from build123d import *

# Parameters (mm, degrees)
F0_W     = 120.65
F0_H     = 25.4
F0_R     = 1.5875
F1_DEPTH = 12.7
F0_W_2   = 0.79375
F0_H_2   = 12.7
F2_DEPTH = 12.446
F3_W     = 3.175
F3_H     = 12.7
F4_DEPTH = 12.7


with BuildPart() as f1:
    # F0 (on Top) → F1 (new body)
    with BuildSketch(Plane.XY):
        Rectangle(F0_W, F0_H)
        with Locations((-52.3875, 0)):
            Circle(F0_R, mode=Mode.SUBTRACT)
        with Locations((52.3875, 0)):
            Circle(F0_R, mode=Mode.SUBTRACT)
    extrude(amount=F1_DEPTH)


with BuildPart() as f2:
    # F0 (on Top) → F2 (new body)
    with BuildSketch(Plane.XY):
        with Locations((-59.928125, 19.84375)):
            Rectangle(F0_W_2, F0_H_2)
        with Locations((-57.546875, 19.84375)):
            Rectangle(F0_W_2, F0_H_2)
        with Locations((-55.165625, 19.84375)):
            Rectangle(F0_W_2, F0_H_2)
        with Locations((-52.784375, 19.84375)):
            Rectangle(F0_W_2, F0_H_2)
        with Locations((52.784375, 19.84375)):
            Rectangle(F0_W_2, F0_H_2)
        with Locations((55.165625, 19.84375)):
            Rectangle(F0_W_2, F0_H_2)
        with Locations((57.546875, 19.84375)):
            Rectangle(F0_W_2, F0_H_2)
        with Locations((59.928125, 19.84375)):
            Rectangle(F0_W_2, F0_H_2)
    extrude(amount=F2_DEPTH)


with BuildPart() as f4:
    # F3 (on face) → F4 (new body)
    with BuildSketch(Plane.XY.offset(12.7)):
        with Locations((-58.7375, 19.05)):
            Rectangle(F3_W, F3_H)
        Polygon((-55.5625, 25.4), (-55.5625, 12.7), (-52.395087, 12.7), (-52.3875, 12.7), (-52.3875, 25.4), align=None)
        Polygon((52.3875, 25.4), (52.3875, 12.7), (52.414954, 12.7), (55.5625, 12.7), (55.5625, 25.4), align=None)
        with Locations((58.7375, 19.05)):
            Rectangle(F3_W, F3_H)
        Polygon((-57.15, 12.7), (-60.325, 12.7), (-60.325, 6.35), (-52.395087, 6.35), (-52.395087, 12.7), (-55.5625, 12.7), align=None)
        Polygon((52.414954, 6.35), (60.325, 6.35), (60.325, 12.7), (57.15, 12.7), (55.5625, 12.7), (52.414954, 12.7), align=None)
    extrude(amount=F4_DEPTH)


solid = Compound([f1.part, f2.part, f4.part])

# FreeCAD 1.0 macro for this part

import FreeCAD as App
import Part
import Sketcher
from FreeCAD import Vector
Q = App.Units.Quantity

doc = App.newDocument("Part")
body = doc.addObject("PartDesign::Body", "Body")

sketch1 = body.newObject("Sketcher::SketchObject", "Sketch")
sketch1.AttachmentSupport = (doc.getObject("XY_Plane"), [""])
sketch1.MapMode = "FlatFace"
sketch1.addGeometry([
    Part.LineSegment(Vector(-60.3, 12.7, 0), Vector(-60.3, -12.7, 0)),
    Part.LineSegment(Vector(-60.3, -12.7, 0), Vector(60.3, -12.7, 0)),
    Part.LineSegment(Vector(60.3, -12.7, 0), Vector(60.3, 12.7, 0)),
    Part.LineSegment(Vector(60.3, 12.7, 0), Vector(-60.3, 12.7, 0)),
    Part.Circle(Vector(-52.4, 0, 0), Vector(0, 0, 1), 1.6),
    Part.Circle(Vector(52.4, 0, 0), Vector(0, 0, 1), 1.6),
], False)
sketch1.addConstraint([
    Sketcher.Constraint("Coincident", 0, 2, 1, 1),
    Sketcher.Constraint("Coincident", 1, 2, 2, 1),
    Sketcher.Constraint("Coincident", 2, 2, 3, 1),
    Sketcher.Constraint("Coincident", 3, 2, 0, 1),
    Sketcher.Constraint("Vertical", 0),
    Sketcher.Constraint("Horizontal", 1),
    Sketcher.Constraint("Vertical", 2),
    Sketcher.Constraint("Horizontal", 3),
    Sketcher.Constraint("Equal", 4, 5),
    Sketcher.Constraint("Symmetric", 4, 3, 5, 3, -1, 1),
    Sketcher.Constraint("Symmetric", 0, 2, 2, 2, -1, 1),
    Sketcher.Constraint("PointOnObject", 4, 3, -1),
    Sketcher.Constraint("DistanceY", 0, 2, 0, 1, Q("1 in")),
    Sketcher.Constraint("Diameter", 4, Q("0.125 in")),
    Sketcher.Constraint("DistanceX", 1, 1, 1, 2, Q("4.75 in")),
    Sketcher.Constraint("DistanceX", 4, 3, -1, 1, Q("2.0625 in")),
])
pad1 = body.newObject("PartDesign::Pad", "Pad")
pad1.Profile = sketch1
pad1.Length = Q("0.5 in")
body2 = doc.addObject("PartDesign::Body", "Body001")
body2.AllowCompound = True

sketch2 = body2.newObject("Sketcher::SketchObject", "Sketch001")
sketch2.AttachmentSupport = (doc.getObject("XY_Plane001"), [""])
sketch2.MapMode = "FlatFace"
sketch2.addGeometry([
    Part.LineSegment(Vector(-60.3, 26.2, 0), Vector(-60.3, 13.5, 0)),
    Part.LineSegment(Vector(-60.3, 13.5, 0), Vector(-59.5, 13.5, 0)),
    Part.LineSegment(Vector(-59.5, 13.5, 0), Vector(-59.5, 26.2, 0)),
    Part.LineSegment(Vector(-59.5, 26.2, 0), Vector(-60.3, 26.2, 0)),
    Part.LineSegment(Vector(-57.9, 26.2, 0), Vector(-57.9, 13.5, 0)),
    Part.LineSegment(Vector(-57.9, 13.5, 0), Vector(-57.1, 13.5, 0)),
    Part.LineSegment(Vector(-57.1, 13.5, 0), Vector(-57.1, 26.2, 0)),
    Part.LineSegment(Vector(-57.1, 26.2, 0), Vector(-57.9, 26.2, 0)),
    Part.LineSegment(Vector(-55.6, 26.2, 0), Vector(-55.6, 13.5, 0)),
    Part.LineSegment(Vector(-55.6, 13.5, 0), Vector(-54.8, 13.5, 0)),
    Part.LineSegment(Vector(-54.8, 13.5, 0), Vector(-54.8, 26.2, 0)),
    Part.LineSegment(Vector(-54.8, 26.2, 0), Vector(-55.6, 26.2, 0)),
    Part.LineSegment(Vector(-53.2, 26.2, 0), Vector(-53.2, 13.5, 0)),
    Part.LineSegment(Vector(-53.2, 13.5, 0), Vector(-52.4, 13.5, 0)),
    Part.LineSegment(Vector(-52.4, 13.5, 0), Vector(-52.4, 26.2, 0)),
    Part.LineSegment(Vector(-52.4, 26.2, 0), Vector(-53.2, 26.2, 0)),
    Part.LineSegment(Vector(52.4, 26.2, 0), Vector(52.4, 13.5, 0)),
    Part.LineSegment(Vector(52.4, 13.5, 0), Vector(53.2, 13.5, 0)),
    Part.LineSegment(Vector(53.2, 13.5, 0), Vector(53.2, 26.2, 0)),
    Part.LineSegment(Vector(53.2, 26.2, 0), Vector(52.4, 26.2, 0)),
    Part.LineSegment(Vector(54.8, 26.2, 0), Vector(54.8, 13.5, 0)),
    Part.LineSegment(Vector(54.8, 13.5, 0), Vector(55.6, 13.5, 0)),
    Part.LineSegment(Vector(55.6, 13.5, 0), Vector(55.6, 26.2, 0)),
    Part.LineSegment(Vector(55.6, 26.2, 0), Vector(54.8, 26.2, 0)),
    Part.LineSegment(Vector(57.1, 26.2, 0), Vector(57.1, 13.5, 0)),
    Part.LineSegment(Vector(57.1, 13.5, 0), Vector(57.9, 13.5, 0)),
    Part.LineSegment(Vector(57.9, 13.5, 0), Vector(57.9, 26.2, 0)),
    Part.LineSegment(Vector(57.9, 26.2, 0), Vector(57.1, 26.2, 0)),
    Part.LineSegment(Vector(59.5, 26.2, 0), Vector(59.5, 13.5, 0)),
    Part.LineSegment(Vector(59.5, 13.5, 0), Vector(60.3, 13.5, 0)),
    Part.LineSegment(Vector(60.3, 13.5, 0), Vector(60.3, 26.2, 0)),
    Part.LineSegment(Vector(60.3, 26.2, 0), Vector(59.5, 26.2, 0)),
], False)
sketch2.addConstraint([
    Sketcher.Constraint("Coincident", 0, 2, 1, 1),
    Sketcher.Constraint("Coincident", 1, 2, 2, 1),
    Sketcher.Constraint("Coincident", 2, 2, 3, 1),
    Sketcher.Constraint("Coincident", 3, 2, 0, 1),
    Sketcher.Constraint("Coincident", 4, 2, 5, 1),
    Sketcher.Constraint("Coincident", 5, 2, 6, 1),
    Sketcher.Constraint("Coincident", 6, 2, 7, 1),
    Sketcher.Constraint("Coincident", 7, 2, 4, 1),
    Sketcher.Constraint("Coincident", 8, 2, 9, 1),
    Sketcher.Constraint("Coincident", 9, 2, 10, 1),
    Sketcher.Constraint("Coincident", 10, 2, 11, 1),
    Sketcher.Constraint("Coincident", 11, 2, 8, 1),
    Sketcher.Constraint("Coincident", 12, 2, 13, 1),
    Sketcher.Constraint("Coincident", 13, 2, 14, 1),
    Sketcher.Constraint("Coincident", 14, 2, 15, 1),
    Sketcher.Constraint("Coincident", 15, 2, 12, 1),
    Sketcher.Constraint("Coincident", 16, 2, 17, 1),
    Sketcher.Constraint("Coincident", 17, 2, 18, 1),
    Sketcher.Constraint("Coincident", 18, 2, 19, 1),
    Sketcher.Constraint("Coincident", 19, 2, 16, 1),
    Sketcher.Constraint("Coincident", 20, 2, 21, 1),
    Sketcher.Constraint("Coincident", 21, 2, 22, 1),
    Sketcher.Constraint("Coincident", 22, 2, 23, 1),
    Sketcher.Constraint("Coincident", 23, 2, 20, 1),
    Sketcher.Constraint("Coincident", 24, 2, 25, 1),
    Sketcher.Constraint("Coincident", 25, 2, 26, 1),
    Sketcher.Constraint("Coincident", 26, 2, 27, 1),
    Sketcher.Constraint("Coincident", 27, 2, 24, 1),
    Sketcher.Constraint("Coincident", 28, 2, 29, 1),
    Sketcher.Constraint("Coincident", 29, 2, 30, 1),
    Sketcher.Constraint("Coincident", 30, 2, 31, 1),
    Sketcher.Constraint("Coincident", 31, 2, 28, 1),
    Sketcher.Constraint("Vertical", 0),
    Sketcher.Constraint("Horizontal", 1),
    Sketcher.Constraint("Vertical", 2),
    Sketcher.Constraint("Horizontal", 3),
    Sketcher.Constraint("Vertical", 4),
    Sketcher.Constraint("Horizontal", 5),
    Sketcher.Constraint("Vertical", 6),
    Sketcher.Constraint("Horizontal", 7),
    Sketcher.Constraint("Vertical", 8),
    Sketcher.Constraint("Horizontal", 9),
    Sketcher.Constraint("Vertical", 10),
    Sketcher.Constraint("Horizontal", 11),
    Sketcher.Constraint("Vertical", 12),
    Sketcher.Constraint("Horizontal", 13),
    Sketcher.Constraint("Vertical", 14),
    Sketcher.Constraint("Horizontal", 15),
    Sketcher.Constraint("Vertical", 16),
    Sketcher.Constraint("Horizontal", 17),
    Sketcher.Constraint("Vertical", 18),
    Sketcher.Constraint("Horizontal", 19),
    Sketcher.Constraint("Vertical", 20),
    Sketcher.Constraint("Horizontal", 21),
    Sketcher.Constraint("Vertical", 22),
    Sketcher.Constraint("Horizontal", 23),
    Sketcher.Constraint("Vertical", 24),
    Sketcher.Constraint("Horizontal", 25),
    Sketcher.Constraint("Vertical", 26),
    Sketcher.Constraint("Horizontal", 27),
    Sketcher.Constraint("Vertical", 28),
    Sketcher.Constraint("Horizontal", 29),
    Sketcher.Constraint("Vertical", 30),
    Sketcher.Constraint("Horizontal", 31),
    Sketcher.Constraint("Symmetric", 13, 2, 16, 2, -2),
    Sketcher.Constraint("Symmetric", 15, 2, 18, 2, -2),
    Sketcher.Constraint("Symmetric", 9, 2, 20, 2, -2),
    Sketcher.Constraint("Symmetric", 11, 2, 22, 2, -2),
    Sketcher.Constraint("Symmetric", 5, 2, 24, 2, -2),
    Sketcher.Constraint("Symmetric", 7, 2, 26, 2, -2),
    Sketcher.Constraint("Symmetric", 1, 2, 28, 2, -2),
    Sketcher.Constraint("Symmetric", 3, 2, 30, 2, -2),
    Sketcher.Constraint("Horizontal", 1, 2, 4, 2),
    Sketcher.Constraint("Horizontal", 3, 2, 6, 2),
    Sketcher.Constraint("Horizontal", 5, 2, 8, 2),
    Sketcher.Constraint("Horizontal", 7, 2, 10, 2),
    Sketcher.Constraint("Horizontal", 9, 2, 12, 2),
    Sketcher.Constraint("Horizontal", 11, 2, 14, 2),
    Sketcher.Constraint("Equal", 3, 5),
    Sketcher.Constraint("Equal", 7, 9),
    Sketcher.Constraint("Equal", 11, 13),
    Sketcher.Constraint("DistanceY", 0, 2, 0, 1, Q("0.5 in")),
    Sketcher.Constraint("DistanceX", 1, 1, 1, 2, Q("0.03125 in")),
    Sketcher.Constraint("DistanceX", 5, 2, -1, 1, Q("2.25 in")),
    Sketcher.Constraint("DistanceX", 1, 2, 12, 2, Q("0.25 in")),
    Sketcher.Constraint("DistanceX", 0, 2, -1, 1, Q("2.375 in")),
    Sketcher.Constraint("DistanceY", -1, 1, 0, 2, Q("0.53125 in")),
    Sketcher.Constraint("DistanceX", 8, 2, -1, 1, Q("2.1875 in")),
])
pad2 = body2.newObject("PartDesign::Pad", "Pad001")
pad2.Profile = sketch2
pad2.Length = Q("0.49 in")
body3 = doc.addObject("PartDesign::Body", "Body002")
body3.AllowCompound = True

sketch3 = body3.newObject("Sketcher::SketchObject", "Sketch002")
sketch3.AttachmentSupport = (doc.getObject("XY_Plane002"), [""])
sketch3.MapMode = "FlatFace"
sketch3.AttachmentOffset = App.Placement(Vector(0, 0, 0.5 * 25.4), App.Rotation())
sketch3.addGeometry([
    Part.LineSegment(Vector(-60.325, 25.4, 0), Vector(-60.325, 6.35, 0)),
    Part.LineSegment(Vector(-60.325, 6.35, 0), Vector(-52.395, 6.35, 0)),
    Part.LineSegment(Vector(-52.395, 6.35, 0), Vector(-52.395, 12.7, 0)),
    Part.LineSegment(Vector(-52.395, 12.7, 0), Vector(-52.388, 12.7, 0)),
    Part.LineSegment(Vector(-52.388, 12.7, 0), Vector(-52.388, 25.4, 0)),
    Part.LineSegment(Vector(-52.388, 25.4, 0), Vector(-55.562, 25.4, 0)),
    Part.LineSegment(Vector(-55.562, 25.4, 0), Vector(-55.562, 12.7, 0)),
    Part.LineSegment(Vector(-55.562, 12.7, 0), Vector(-57.15, 12.7, 0)),
    Part.LineSegment(Vector(-57.15, 12.7, 0), Vector(-57.15, 25.4, 0)),
    Part.LineSegment(Vector(-57.15, 25.4, 0), Vector(-60.325, 25.4, 0)),
    Part.LineSegment(Vector(52.388, 25.4, 0), Vector(52.388, 12.7, 0)),
    Part.LineSegment(Vector(52.388, 12.7, 0), Vector(52.415, 12.7, 0)),
    Part.LineSegment(Vector(52.415, 12.7, 0), Vector(52.415, 6.35, 0)),
    Part.LineSegment(Vector(52.415, 6.35, 0), Vector(60.325, 6.35, 0)),
    Part.LineSegment(Vector(60.325, 6.35, 0), Vector(60.325, 25.4, 0)),
    Part.LineSegment(Vector(60.325, 25.4, 0), Vector(57.15, 25.4, 0)),
    Part.LineSegment(Vector(57.15, 25.4, 0), Vector(57.15, 12.7, 0)),
    Part.LineSegment(Vector(57.15, 12.7, 0), Vector(55.562, 12.7, 0)),
    Part.LineSegment(Vector(55.562, 12.7, 0), Vector(55.562, 25.4, 0)),
    Part.LineSegment(Vector(55.562, 25.4, 0), Vector(52.388, 25.4, 0)),
], False)
sketch3.addConstraint([
    Sketcher.Constraint("Coincident", 0, 2, 1, 1),
    Sketcher.Constraint("Coincident", 1, 2, 2, 1),
    Sketcher.Constraint("Coincident", 2, 2, 3, 1),
    Sketcher.Constraint("Coincident", 3, 2, 4, 1),
    Sketcher.Constraint("Coincident", 4, 2, 5, 1),
    Sketcher.Constraint("Coincident", 5, 2, 6, 1),
    Sketcher.Constraint("Coincident", 6, 2, 7, 1),
    Sketcher.Constraint("Coincident", 7, 2, 8, 1),
    Sketcher.Constraint("Coincident", 8, 2, 9, 1),
    Sketcher.Constraint("Coincident", 9, 2, 0, 1),
    Sketcher.Constraint("Coincident", 10, 2, 11, 1),
    Sketcher.Constraint("Coincident", 11, 2, 12, 1),
    Sketcher.Constraint("Coincident", 12, 2, 13, 1),
    Sketcher.Constraint("Coincident", 13, 2, 14, 1),
    Sketcher.Constraint("Coincident", 14, 2, 15, 1),
    Sketcher.Constraint("Coincident", 15, 2, 16, 1),
    Sketcher.Constraint("Coincident", 16, 2, 17, 1),
    Sketcher.Constraint("Coincident", 17, 2, 18, 1),
    Sketcher.Constraint("Coincident", 18, 2, 19, 1),
    Sketcher.Constraint("Coincident", 19, 2, 10, 1),
    Sketcher.Constraint("Vertical", 0),
    Sketcher.Constraint("Horizontal", 1),
    Sketcher.Constraint("Vertical", 2),
    Sketcher.Constraint("Horizontal", 3),
    Sketcher.Constraint("Vertical", 4),
    Sketcher.Constraint("Horizontal", 5),
    Sketcher.Constraint("Vertical", 6),
    Sketcher.Constraint("Horizontal", 7),
    Sketcher.Constraint("Vertical", 8),
    Sketcher.Constraint("Horizontal", 9),
    Sketcher.Constraint("Vertical", 10),
    Sketcher.Constraint("Horizontal", 11),
    Sketcher.Constraint("Vertical", 12),
    Sketcher.Constraint("Horizontal", 13),
    Sketcher.Constraint("Vertical", 14),
    Sketcher.Constraint("Horizontal", 15),
    Sketcher.Constraint("Vertical", 16),
    Sketcher.Constraint("Horizontal", 17),
    Sketcher.Constraint("Vertical", 18),
    Sketcher.Constraint("Horizontal", 19),
    Sketcher.Constraint("Symmetric", 3, 2, 10, 2, -2),
    Sketcher.Constraint("Symmetric", 0, 2, 13, 2, -2),
    Sketcher.Constraint("Symmetric", 8, 2, 15, 2, -2),
    Sketcher.Constraint("Symmetric", 6, 2, 17, 2, -2),
    Sketcher.Constraint("Horizontal", 3, 2, 6, 2),
    Sketcher.Constraint("Horizontal", 5, 2, 8, 2),
    Sketcher.Constraint("Horizontal", 15, 2, 18, 2),
    Sketcher.Constraint("Equal", 5, 9),
    Sketcher.Constraint("DistanceY", 4, 1, 4, 2, Q("0.5 in")),
    Sketcher.Constraint("DistanceY", -1, 1, 4, 2, Q("1 in")),
    Sketcher.Constraint("DistanceY", 0, 2, 0, 1, Q("0.75 in")),
    Sketcher.Constraint("DistanceX", 5, 2, 5, 1, Q("0.125 in")),
    Sketcher.Constraint("DistanceX", 7, 2, 7, 1, Q("0.0625 in")),
    Sketcher.Constraint("DistanceX", 7, 2, -1, 1, Q("2.25 in")),
    Sketcher.Constraint("DistanceX", 1, 1, 1, 2, Q("7.929913 mm")),
    Sketcher.Constraint("DistanceX", 11, 1, 11, 2, Q("0.027454 mm")),
])
pad3 = body3.newObject("PartDesign::Pad", "Pad002")
pad3.Profile = sketch3
pad3.Length = Q("0.5 in")

doc.recompute()
